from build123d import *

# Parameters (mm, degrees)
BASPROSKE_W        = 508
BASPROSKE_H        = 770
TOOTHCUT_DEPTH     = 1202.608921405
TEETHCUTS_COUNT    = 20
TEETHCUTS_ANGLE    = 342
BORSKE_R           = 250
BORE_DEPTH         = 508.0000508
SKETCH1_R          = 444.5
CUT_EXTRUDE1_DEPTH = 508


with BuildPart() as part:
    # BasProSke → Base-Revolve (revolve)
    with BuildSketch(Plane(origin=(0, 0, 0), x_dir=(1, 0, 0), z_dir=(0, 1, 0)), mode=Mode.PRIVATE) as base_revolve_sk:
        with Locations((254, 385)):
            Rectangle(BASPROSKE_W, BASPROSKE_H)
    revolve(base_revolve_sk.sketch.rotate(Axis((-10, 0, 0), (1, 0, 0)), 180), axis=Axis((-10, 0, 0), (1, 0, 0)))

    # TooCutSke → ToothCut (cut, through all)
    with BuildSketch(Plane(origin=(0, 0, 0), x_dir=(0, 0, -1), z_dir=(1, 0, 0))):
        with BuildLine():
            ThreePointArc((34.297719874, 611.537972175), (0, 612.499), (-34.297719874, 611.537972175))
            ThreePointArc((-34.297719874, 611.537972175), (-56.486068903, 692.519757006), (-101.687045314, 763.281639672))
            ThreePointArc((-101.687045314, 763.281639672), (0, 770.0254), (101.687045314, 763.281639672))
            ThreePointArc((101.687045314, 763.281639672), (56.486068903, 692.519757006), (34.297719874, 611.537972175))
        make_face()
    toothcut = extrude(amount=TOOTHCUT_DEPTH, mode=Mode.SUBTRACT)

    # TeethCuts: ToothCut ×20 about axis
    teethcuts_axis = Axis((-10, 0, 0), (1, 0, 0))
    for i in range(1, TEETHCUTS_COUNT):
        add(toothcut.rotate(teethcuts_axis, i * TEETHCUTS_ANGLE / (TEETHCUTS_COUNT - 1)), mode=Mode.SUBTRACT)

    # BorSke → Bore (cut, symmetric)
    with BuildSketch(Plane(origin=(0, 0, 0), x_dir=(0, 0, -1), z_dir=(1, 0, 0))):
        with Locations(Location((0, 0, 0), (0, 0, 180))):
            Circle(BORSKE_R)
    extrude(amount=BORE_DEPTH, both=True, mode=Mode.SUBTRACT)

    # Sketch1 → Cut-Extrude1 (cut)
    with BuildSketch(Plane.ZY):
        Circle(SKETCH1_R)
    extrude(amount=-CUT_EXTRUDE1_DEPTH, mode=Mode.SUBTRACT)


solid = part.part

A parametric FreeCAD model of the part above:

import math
import FreeCAD as App
import Part
import Sketcher


def add_polygon(sketch, points):
    """Adds a closed chain of lines whose ends are joined by coincident constraints."""
    first, n = sketch.GeometryCount, len(points)
    for a, b in zip(points, points[1:] + points[:1]):
        sketch.addGeometry(Part.LineSegment(App.Vector(*a, 0), App.Vector(*b, 0)), False)
    for i in range(n):
        sketch.addConstraint(Sketcher.Constraint("Coincident", first + i, 2, first + (i + 1) % n, 1))

doc = App.newDocument("Part")
body = doc.addObject("PartDesign::Body", "Body")

# Sketch on XZ plane
sketch1 = body.newObject("Sketcher::SketchObject", "Sketch")
sketch1.AttachmentSupport = (doc.getObject("XZ_Plane"), [""])
sketch1.MapMode = "FlatFace"
add_polygon(sketch1, [(0, -770), (0, 0), (508, 0), (508, -770)])  # lines 0-3
sketch1.addConstraint(Sketcher.Constraint("Vertical", 0))
sketch1.addConstraint(Sketcher.Constraint("Horizontal", 1))
sketch1.addConstraint(Sketcher.Constraint("Vertical", 2))
sketch1.addConstraint(Sketcher.Constraint("Horizontal", 3))
sketch1.addConstraint(Sketcher.Constraint("Coincident", 0, 2, -1, 1))
sketch1.addConstraint(Sketcher.Constraint("DistanceX", 1, 1, 1, 2, 508.0))
sketch1.addConstraint(Sketcher.Constraint("DistanceY", 0, 1, 0, 2, 770.0))
revolution = body.newObject("PartDesign::Revolution", "Revolution")
revolution.Profile = sketch1
revolution.ReferenceAxis = (sketch1, ["H_Axis"])
revolution.Angle = 360

# Sketch on YZ plane
sketch2 = body.newObject("Sketcher::SketchObject", "Sketch001")
sketch2.AttachmentSupport = (doc.getObject("YZ_Plane"), [""])
sketch2.MapMode = "FlatFace"
sketch2.addGeometry(Part.ArcOfCircle(Part.Circle(App.Vector(0, 0, 0), App.Vector(0, 0, 1), 612), math.radians(-3.21), math.radians(3.21)), False)
sketch2.addGeometry(Part.ArcOfCircle(Part.Circle(App.Vector(579, -312, 0), App.Vector(0, 0, 1), 280), math.radians(49), math.radians(83)), False)
sketch2.addGeometry(Part.ArcOfCircle(Part.Circle(App.Vector(0, 0, 0), App.Vector(0, 0, 1), 770), math.radians(-7.59), math.radians(7.59)), False)
sketch2.addGeometry(Part.ArcOfCircle(Part.Circle(App.Vector(579, 312, 0), App.Vector(0, 0, 1), 280), math.radians(-83), math.radians(-49)), False)
sketch2.addConstraint(Sketcher.Constraint("Coincident", 0, 1, 1, 2))
sketch2.addConstraint(Sketcher.Constraint("Coincident", 1, 1, 2, 1))
sketch2.addConstraint(Sketcher.Constraint("Coincident", 2, 2, 3, 2))
sketch2.addConstraint(Sketcher.Constraint("Coincident", 3, 1, 0, 2))
sketch2.addConstraint(Sketcher.Constraint("Coincident", 0, 3, -1, 1))
sketch2.addConstraint(Sketcher.Constraint("Coincident", 2, 3, -1, 1))
sketch2.addConstraint(Sketcher.Constraint("Equal", 1, 3))
sketch2.addConstraint(Sketcher.Constraint("Symmetric", 1, 3, 3, 3, -1))
sketch2.addConstraint(Sketcher.Constraint("Radius", 1, 280.0))
sketch2.addConstraint(Sketcher.Constraint("Radius", 0, 612.499))
sketch2.addConstraint(Sketcher.Constraint("Radius", 2, 770.0254))
sketch2.addConstraint(Sketcher.Constraint("DistanceY", 1, 3, -1, 1, 312.386028))
sketch2.addConstraint(Sketcher.Constraint("DistanceY", -1, 1, 3, 1, 34.29772))
pocket1 = body.newObject("PartDesign::Pocket", "Pocket")
pocket1.Profile = sketch2
pocket1.Type = "ThroughAll"
pocket1.Reversed = True
doc.recompute()

polarpattern = body.newObject("PartDesign::PolarPattern", "PolarPattern")
polarpattern.Originals = [pocket1]
polarpattern.Axis = (doc.getObject("X_Axis"), [""])
polarpattern.Angle = 360
polarpattern.Occurrences = 20
body.Tip = polarpattern

# Sketch on YZ plane
sketch3 = body.newObject("Sketcher::SketchObject", "Sketch002")
sketch3.AttachmentSupport = (doc.getObject("YZ_Plane"), [""])
sketch3.MapMode = "FlatFace"
sketch3.addGeometry(Part.Circle(App.Vector(0, 0, 0), App.Vector(0, 0, 1), 250), False)
sketch3.addConstraint(Sketcher.Constraint("Coincident", 0, 3, -1, 1))
sketch3.addConstraint(Sketcher.Constraint("Diameter", 0, 500.0))
pocket2 = body.newObject("PartDesign::Pocket", "Pocket001")
pocket2.Profile = sketch3
pocket2.Length = 1016.000102
pocket2.Midplane = True

# Sketch on YZ plane
sketch4 = body.newObject("Sketcher::SketchObject", "Sketch003")
sketch4.AttachmentSupport = (doc.getObject("YZ_Plane"), [""])
sketch4.MapMode = "FlatFace"
sketch4.addGeometry(Part.Circle(App.Vector(0, 0, 0), App.Vector(0, 0, 1), 444), False)
sketch4.addConstraint(Sketcher.Constraint("Coincident", 0, 3, -1, 1))
sketch4.addConstraint(Sketcher.Constraint("Diameter", 0, 889.0))
pocket3 = body.newObject("PartDesign::Pocket", "Pocket002")
pocket3.Profile = sketch4
pocket3.Length = 508
pocket3.Reversed = True

doc.recompute()
